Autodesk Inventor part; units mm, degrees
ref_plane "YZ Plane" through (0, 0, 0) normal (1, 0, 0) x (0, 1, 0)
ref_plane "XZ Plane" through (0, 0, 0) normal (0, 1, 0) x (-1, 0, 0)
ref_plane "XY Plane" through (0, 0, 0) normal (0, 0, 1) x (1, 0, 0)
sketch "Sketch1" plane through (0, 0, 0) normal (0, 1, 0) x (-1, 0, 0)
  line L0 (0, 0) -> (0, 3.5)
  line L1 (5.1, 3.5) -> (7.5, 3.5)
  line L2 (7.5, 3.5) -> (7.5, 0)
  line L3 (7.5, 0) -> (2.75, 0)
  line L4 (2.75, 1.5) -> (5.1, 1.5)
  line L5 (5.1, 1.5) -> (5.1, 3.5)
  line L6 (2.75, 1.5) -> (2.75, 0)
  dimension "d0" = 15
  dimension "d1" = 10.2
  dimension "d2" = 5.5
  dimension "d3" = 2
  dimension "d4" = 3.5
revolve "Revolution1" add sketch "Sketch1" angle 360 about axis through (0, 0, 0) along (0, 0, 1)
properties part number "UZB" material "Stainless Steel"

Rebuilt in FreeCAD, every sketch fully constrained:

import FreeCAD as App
import Part
import Sketcher

doc = App.newDocument("Part")
body = doc.addObject("PartDesign::Body", "Body")

# Sketch on XZ plane
sketch1 = body.newObject("Sketcher::SketchObject", "Sketch")
sketch1.AttachmentSupport = (doc.getObject("XZ_Plane"), [""])
sketch1.MapMode = "FlatFace"
sketch1.addGeometry(Part.LineSegment(App.Vector(-7.5, 3.5, 0), App.Vector(-5.1, 3.5, 0)), False)
sketch1.addGeometry(Part.LineSegment(App.Vector(-5.1, 3.5, 0), App.Vector(-5.1, 1.5, 0)), False)
sketch1.addGeometry(Part.LineSegment(App.Vector(-5.1, 1.5, 0), App.Vector(-2.8, 1.5, 0)), False)
sketch1.addGeometry(Part.LineSegment(App.Vector(-2.8, 1.5, 0), App.Vector(-2.8, 0, 0)), False)
sketch1.addGeometry(Part.LineSegment(App.Vector(-2.8, 0, 0), App.Vector(-7.5, 0, 0)), False)
sketch1.addGeometry(Part.LineSegment(App.Vector(-7.5, 0, 0), App.Vector(-7.5, 3.5, 0)), False)
sketch1.addConstraint(Sketcher.Constraint("Coincident", 0, 2, 1, 1))
sketch1.addConstraint(Sketcher.Constraint("Coincident", 1, 2, 2, 1))
sketch1.addConstraint(Sketcher.Constraint("Coincident", 2, 2, 3, 1))
sketch1.addConstraint(Sketcher.Constraint("Coincident", 3, 2, 4, 1))
sketch1.addConstraint(Sketcher.Constraint("Coincident", 4, 2, 5, 1))
sketch1.addConstraint(Sketcher.Constraint("Coincident", 5, 2, 0, 1))
sketch1.addConstraint(Sketcher.Constraint("Horizontal", 0))
sketch1.addConstraint(Sketcher.Constraint("Vertical", 1))
sketch1.addConstraint(Sketcher.Constraint("Horizontal", 2))
sketch1.addConstraint(Sketcher.Constraint("Vertical", 3))
sketch1.addConstraint(Sketcher.Constraint("Horizontal", 4))
sketch1.addConstraint(Sketcher.Constraint("Vertical", 5))
sketch1.addConstraint(Sketcher.Constraint("PointOnObject", 3, 2, -1))
sketch1.addConstraint(Sketcher.Constraint("DistanceY", 1, 2, 1, 1, 2.0))
sketch1.addConstraint(Sketcher.Constraint("DistanceY", 5, 1, 5, 2, 3.5))
sketch1.addConstraint(Sketcher.Constraint("DistanceX", 0, 1, 0, 2, 2.4))
sketch1.addConstraint(Sketcher.Constraint("DistanceX", 2, 1, 2, 2, 2.35))
sketch1.addConstraint(Sketcher.Constraint("DistanceX", 0, 2, -1, 1, 5.1))
revolution = body.newObject("PartDesign::Revolution", "Revolution")
revolution.Profile = sketch1
revolution.ReferenceAxis = (sketch1, ["V_Axis"])
revolution.Angle = 360

doc.recompute()
